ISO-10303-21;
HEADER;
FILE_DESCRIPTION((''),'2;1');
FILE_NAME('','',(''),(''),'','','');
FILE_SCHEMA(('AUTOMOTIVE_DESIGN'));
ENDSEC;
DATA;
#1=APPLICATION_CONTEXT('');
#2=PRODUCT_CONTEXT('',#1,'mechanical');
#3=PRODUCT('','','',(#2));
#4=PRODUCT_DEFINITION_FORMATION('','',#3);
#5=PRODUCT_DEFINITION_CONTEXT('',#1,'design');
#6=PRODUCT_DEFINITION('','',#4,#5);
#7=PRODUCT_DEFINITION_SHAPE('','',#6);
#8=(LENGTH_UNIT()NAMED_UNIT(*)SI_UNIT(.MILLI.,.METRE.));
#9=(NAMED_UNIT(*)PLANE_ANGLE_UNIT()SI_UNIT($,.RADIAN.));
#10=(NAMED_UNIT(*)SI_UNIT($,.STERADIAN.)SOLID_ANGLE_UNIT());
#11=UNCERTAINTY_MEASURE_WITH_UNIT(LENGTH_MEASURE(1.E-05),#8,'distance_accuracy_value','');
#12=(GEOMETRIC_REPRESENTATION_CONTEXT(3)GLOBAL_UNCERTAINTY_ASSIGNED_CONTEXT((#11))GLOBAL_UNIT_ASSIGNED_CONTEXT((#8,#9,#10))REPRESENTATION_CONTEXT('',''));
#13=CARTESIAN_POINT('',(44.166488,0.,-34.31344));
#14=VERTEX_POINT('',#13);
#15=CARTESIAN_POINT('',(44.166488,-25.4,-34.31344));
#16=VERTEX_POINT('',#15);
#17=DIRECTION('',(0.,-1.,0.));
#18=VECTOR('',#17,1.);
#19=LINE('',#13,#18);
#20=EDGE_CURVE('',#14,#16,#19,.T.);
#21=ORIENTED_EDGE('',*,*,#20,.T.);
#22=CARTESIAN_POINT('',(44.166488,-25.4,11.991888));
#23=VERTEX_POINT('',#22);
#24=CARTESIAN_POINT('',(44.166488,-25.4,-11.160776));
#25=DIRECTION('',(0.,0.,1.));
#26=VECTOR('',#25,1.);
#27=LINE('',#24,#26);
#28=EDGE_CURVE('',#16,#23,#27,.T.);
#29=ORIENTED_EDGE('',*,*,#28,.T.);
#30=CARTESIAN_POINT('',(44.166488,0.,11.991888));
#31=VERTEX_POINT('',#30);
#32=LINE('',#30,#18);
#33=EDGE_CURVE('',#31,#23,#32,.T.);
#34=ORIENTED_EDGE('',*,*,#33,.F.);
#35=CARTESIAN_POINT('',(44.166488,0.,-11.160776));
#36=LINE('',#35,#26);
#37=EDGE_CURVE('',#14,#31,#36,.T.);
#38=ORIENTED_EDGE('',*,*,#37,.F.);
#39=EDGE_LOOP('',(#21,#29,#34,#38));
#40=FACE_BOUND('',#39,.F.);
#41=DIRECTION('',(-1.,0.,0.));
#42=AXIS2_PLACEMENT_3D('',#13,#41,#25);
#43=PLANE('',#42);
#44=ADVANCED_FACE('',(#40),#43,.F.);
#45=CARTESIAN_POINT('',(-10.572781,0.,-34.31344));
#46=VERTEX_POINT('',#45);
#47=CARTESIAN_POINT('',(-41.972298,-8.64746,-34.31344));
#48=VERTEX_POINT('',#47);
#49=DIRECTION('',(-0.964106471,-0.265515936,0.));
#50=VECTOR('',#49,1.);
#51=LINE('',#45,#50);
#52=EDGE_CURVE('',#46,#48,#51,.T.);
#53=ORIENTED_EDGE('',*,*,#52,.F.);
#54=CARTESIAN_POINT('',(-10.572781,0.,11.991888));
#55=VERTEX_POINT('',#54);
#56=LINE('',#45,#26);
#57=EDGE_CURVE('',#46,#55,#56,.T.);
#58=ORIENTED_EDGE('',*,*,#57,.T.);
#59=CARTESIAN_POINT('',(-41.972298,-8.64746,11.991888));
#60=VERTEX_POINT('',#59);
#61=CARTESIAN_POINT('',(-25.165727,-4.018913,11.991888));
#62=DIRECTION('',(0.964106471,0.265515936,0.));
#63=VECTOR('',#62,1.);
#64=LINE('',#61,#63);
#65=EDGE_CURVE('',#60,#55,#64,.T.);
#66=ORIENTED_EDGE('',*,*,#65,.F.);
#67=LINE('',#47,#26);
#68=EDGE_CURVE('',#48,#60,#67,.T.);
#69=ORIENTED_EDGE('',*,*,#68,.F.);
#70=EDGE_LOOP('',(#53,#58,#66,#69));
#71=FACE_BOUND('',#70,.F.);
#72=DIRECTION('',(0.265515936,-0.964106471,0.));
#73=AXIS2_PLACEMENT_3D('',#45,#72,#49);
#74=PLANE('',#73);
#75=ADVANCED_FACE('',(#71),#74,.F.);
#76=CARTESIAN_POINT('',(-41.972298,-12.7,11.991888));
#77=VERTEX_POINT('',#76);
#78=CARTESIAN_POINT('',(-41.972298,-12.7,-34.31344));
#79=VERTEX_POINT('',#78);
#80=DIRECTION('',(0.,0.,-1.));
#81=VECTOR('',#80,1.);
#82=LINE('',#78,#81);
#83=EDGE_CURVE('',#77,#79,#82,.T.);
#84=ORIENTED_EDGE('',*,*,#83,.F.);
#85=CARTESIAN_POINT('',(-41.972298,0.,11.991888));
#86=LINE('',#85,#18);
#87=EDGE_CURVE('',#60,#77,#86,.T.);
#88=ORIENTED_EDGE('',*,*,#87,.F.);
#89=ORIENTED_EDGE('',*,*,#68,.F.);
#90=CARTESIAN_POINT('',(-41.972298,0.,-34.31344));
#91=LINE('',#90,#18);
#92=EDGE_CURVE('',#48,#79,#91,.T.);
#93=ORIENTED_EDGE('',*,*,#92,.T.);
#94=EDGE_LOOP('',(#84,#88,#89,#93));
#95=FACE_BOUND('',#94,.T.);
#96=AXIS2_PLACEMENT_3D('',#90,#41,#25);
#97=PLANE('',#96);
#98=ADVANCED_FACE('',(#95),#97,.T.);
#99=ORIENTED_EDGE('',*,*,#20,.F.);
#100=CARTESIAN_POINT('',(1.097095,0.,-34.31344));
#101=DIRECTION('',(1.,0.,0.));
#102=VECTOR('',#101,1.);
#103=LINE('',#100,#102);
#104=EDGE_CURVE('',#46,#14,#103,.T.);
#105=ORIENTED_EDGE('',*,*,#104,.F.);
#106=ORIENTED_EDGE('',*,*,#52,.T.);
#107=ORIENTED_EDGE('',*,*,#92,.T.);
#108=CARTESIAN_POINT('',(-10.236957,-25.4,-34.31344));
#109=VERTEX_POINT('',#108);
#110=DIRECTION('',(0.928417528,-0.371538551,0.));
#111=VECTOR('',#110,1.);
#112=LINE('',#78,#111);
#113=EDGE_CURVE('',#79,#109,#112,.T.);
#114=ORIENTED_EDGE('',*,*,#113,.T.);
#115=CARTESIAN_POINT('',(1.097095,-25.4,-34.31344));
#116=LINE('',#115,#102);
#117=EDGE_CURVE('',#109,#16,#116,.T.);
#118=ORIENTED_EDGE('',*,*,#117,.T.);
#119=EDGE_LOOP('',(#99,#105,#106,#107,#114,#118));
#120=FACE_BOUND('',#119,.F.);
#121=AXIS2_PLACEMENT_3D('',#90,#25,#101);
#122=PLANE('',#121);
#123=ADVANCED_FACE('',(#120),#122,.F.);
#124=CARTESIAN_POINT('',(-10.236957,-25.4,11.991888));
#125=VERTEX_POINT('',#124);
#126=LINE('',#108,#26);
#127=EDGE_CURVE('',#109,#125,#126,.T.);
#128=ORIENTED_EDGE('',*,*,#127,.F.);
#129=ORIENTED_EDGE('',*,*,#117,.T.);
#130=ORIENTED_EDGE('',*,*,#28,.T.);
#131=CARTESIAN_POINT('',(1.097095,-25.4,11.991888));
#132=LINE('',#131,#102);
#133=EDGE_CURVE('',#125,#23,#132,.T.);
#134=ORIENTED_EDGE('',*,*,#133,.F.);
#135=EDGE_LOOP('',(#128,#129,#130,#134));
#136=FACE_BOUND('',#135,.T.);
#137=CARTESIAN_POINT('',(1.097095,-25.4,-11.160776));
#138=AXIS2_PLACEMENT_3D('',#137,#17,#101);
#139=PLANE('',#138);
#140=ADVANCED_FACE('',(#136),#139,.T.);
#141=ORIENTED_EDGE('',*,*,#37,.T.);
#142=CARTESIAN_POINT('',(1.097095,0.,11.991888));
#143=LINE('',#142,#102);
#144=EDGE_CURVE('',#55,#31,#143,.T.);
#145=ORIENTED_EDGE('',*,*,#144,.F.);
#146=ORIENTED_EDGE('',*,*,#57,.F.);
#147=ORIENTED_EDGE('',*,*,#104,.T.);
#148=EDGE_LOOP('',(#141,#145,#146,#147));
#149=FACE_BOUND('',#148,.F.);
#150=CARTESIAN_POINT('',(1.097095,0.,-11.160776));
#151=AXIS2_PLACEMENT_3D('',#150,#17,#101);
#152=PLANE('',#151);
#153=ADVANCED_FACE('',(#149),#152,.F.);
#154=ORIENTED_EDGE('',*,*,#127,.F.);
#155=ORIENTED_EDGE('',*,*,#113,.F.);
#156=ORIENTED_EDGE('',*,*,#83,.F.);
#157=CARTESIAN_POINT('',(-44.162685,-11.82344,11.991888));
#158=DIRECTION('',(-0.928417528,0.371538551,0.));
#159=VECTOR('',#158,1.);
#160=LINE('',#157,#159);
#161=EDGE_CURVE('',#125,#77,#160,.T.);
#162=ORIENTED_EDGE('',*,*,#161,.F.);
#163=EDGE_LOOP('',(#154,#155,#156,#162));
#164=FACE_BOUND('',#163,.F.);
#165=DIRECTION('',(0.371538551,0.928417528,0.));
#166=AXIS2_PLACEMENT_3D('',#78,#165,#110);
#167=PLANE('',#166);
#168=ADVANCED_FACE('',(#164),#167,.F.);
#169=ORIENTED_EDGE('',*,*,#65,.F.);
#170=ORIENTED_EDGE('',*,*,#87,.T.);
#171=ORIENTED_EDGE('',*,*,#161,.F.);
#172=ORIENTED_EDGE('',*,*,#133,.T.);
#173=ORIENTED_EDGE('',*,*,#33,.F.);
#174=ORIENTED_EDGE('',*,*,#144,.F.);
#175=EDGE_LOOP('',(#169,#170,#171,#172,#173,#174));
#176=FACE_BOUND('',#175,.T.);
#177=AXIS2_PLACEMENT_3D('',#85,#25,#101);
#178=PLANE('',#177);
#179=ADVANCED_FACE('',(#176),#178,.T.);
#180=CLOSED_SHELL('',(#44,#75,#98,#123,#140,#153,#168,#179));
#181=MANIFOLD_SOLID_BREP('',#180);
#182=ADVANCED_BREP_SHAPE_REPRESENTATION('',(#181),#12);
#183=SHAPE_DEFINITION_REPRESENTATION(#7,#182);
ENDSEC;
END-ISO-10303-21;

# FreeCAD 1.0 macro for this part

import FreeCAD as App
import Part
import Sketcher

V = App.Vector
Q = App.Units.Quantity


def add_polygon(sketch, points):
    """Adds a closed chain of lines whose ends are joined by coincident constraints."""
    first, n = sketch.GeometryCount, len(points)
    for a, b in zip(points, points[1:] + points[:1]):
        sketch.addGeometry(Part.LineSegment(App.Vector(*a, 0), App.Vector(*b, 0)), False)
    for i in range(n):
        sketch.addConstraint(Sketcher.Constraint("Coincident", first + i, 2, first + (i + 1) % n, 1))

doc = App.newDocument("Part")
body = doc.addObject("PartDesign::Body", "Body")

sketch1 = doc.addObject("Sketcher::SketchObject", "Sketch")
body.addObject(sketch1)
sketch1.AttachmentSupport = (doc.XZ_Plane, [""])
sketch1.MapMode = "FlatFace"
add_polygon(sketch1, [(-41.972298, 11.991888), (-41.972298, -34.31344), (44.166488, -34.31344), (44.166488, 11.991888)])
sketch1.addConstraint([
    Sketcher.Constraint("Vertical", 0),
    Sketcher.Constraint("Horizontal", 1),
    Sketcher.Constraint("Vertical", 2),
    Sketcher.Constraint("Horizontal", 3),
    Sketcher.Constraint("DistanceY", 0, 2, 0, 1, 46.305328),
    Sketcher.Constraint("DistanceX", 1, 1, 1, 2, 86.138785),
    Sketcher.Constraint("DistanceY", 0, 2, -1, 1, 34.31344),
    Sketcher.Constraint("DistanceX", 0, 2, -1, 1, 41.972298),
])
pad1 = doc.addObject("PartDesign::Pad", "Pad")
body.addObject(pad1)
pad1.Profile = sketch1
pad1.Length = Q("1 in")

sketch2 = doc.addObject("Sketcher::SketchObject", "Sketch001")
body.addObject(sketch2)
sketch2.AttachmentSupport = (doc.XY_Plane, [""])
sketch2.MapMode = "FlatFace"
sketch2.AttachmentOffset = App.Placement(V(0, 0, -34.31344), App.Rotation())
add_polygon(sketch2, [(-41.972298, -12.7), (-10.236957, -25.4), (-41.972298, -25.4)])
sketch2.addConstraint([
    Sketcher.Constraint("Horizontal", 1),
    Sketcher.Constraint("Vertical", 2),
    Sketcher.Constraint("DistanceY", 2, 1, 2, 2, Q("0.5 in")),
    Sketcher.Constraint("DistanceY", 0, 2, -1, 1, Q("1 in")),
    Sketcher.Constraint("DistanceX", 1, 2, 1, 1, 31.735341),
    Sketcher.Constraint("DistanceX", 1, 2, -1, 1, 41.972298),
])
pocket1 = doc.addObject("PartDesign::Pocket", "Pocket")
body.addObject(pocket1)
pocket1.Profile = sketch2
pocket1.Length = Q("1.9 in")
pocket1.Reversed = True

sketch3 = doc.addObject("Sketcher::SketchObject", "Sketch002")
body.addObject(sketch3)
sketch3.AttachmentSupport = (doc.XY_Plane, [""])
sketch3.MapMode = "FlatFace"
sketch3.AttachmentOffset = App.Placement(V(0, 0, -34.31344), App.Rotation())
add_polygon(sketch3, [(-41.972298, 0), (-10.572781, 0), (-41.972298, -8.64746)])
sketch3.addConstraint([
    Sketcher.Constraint("Horizontal", 0),
    Sketcher.Constraint("Vertical", 2),
    Sketcher.Constraint("PointOnObject", 0, 2, -1),
    Sketcher.Constraint("DistanceY", 2, 1, 2, 2, 8.64746),
    Sketcher.Constraint("DistanceX", 1, 2, -1, 1, 41.972298),
    Sketcher.Constraint("DistanceX", 0, 1, 0, 2, 31.399517),
])
pocket2 = doc.addObject("PartDesign::Pocket", "Pocket001")
body.addObject(pocket2)
pocket2.Profile = sketch3
pocket2.Length = Q("2 in")
pocket2.Reversed = True

doc.recompute()
